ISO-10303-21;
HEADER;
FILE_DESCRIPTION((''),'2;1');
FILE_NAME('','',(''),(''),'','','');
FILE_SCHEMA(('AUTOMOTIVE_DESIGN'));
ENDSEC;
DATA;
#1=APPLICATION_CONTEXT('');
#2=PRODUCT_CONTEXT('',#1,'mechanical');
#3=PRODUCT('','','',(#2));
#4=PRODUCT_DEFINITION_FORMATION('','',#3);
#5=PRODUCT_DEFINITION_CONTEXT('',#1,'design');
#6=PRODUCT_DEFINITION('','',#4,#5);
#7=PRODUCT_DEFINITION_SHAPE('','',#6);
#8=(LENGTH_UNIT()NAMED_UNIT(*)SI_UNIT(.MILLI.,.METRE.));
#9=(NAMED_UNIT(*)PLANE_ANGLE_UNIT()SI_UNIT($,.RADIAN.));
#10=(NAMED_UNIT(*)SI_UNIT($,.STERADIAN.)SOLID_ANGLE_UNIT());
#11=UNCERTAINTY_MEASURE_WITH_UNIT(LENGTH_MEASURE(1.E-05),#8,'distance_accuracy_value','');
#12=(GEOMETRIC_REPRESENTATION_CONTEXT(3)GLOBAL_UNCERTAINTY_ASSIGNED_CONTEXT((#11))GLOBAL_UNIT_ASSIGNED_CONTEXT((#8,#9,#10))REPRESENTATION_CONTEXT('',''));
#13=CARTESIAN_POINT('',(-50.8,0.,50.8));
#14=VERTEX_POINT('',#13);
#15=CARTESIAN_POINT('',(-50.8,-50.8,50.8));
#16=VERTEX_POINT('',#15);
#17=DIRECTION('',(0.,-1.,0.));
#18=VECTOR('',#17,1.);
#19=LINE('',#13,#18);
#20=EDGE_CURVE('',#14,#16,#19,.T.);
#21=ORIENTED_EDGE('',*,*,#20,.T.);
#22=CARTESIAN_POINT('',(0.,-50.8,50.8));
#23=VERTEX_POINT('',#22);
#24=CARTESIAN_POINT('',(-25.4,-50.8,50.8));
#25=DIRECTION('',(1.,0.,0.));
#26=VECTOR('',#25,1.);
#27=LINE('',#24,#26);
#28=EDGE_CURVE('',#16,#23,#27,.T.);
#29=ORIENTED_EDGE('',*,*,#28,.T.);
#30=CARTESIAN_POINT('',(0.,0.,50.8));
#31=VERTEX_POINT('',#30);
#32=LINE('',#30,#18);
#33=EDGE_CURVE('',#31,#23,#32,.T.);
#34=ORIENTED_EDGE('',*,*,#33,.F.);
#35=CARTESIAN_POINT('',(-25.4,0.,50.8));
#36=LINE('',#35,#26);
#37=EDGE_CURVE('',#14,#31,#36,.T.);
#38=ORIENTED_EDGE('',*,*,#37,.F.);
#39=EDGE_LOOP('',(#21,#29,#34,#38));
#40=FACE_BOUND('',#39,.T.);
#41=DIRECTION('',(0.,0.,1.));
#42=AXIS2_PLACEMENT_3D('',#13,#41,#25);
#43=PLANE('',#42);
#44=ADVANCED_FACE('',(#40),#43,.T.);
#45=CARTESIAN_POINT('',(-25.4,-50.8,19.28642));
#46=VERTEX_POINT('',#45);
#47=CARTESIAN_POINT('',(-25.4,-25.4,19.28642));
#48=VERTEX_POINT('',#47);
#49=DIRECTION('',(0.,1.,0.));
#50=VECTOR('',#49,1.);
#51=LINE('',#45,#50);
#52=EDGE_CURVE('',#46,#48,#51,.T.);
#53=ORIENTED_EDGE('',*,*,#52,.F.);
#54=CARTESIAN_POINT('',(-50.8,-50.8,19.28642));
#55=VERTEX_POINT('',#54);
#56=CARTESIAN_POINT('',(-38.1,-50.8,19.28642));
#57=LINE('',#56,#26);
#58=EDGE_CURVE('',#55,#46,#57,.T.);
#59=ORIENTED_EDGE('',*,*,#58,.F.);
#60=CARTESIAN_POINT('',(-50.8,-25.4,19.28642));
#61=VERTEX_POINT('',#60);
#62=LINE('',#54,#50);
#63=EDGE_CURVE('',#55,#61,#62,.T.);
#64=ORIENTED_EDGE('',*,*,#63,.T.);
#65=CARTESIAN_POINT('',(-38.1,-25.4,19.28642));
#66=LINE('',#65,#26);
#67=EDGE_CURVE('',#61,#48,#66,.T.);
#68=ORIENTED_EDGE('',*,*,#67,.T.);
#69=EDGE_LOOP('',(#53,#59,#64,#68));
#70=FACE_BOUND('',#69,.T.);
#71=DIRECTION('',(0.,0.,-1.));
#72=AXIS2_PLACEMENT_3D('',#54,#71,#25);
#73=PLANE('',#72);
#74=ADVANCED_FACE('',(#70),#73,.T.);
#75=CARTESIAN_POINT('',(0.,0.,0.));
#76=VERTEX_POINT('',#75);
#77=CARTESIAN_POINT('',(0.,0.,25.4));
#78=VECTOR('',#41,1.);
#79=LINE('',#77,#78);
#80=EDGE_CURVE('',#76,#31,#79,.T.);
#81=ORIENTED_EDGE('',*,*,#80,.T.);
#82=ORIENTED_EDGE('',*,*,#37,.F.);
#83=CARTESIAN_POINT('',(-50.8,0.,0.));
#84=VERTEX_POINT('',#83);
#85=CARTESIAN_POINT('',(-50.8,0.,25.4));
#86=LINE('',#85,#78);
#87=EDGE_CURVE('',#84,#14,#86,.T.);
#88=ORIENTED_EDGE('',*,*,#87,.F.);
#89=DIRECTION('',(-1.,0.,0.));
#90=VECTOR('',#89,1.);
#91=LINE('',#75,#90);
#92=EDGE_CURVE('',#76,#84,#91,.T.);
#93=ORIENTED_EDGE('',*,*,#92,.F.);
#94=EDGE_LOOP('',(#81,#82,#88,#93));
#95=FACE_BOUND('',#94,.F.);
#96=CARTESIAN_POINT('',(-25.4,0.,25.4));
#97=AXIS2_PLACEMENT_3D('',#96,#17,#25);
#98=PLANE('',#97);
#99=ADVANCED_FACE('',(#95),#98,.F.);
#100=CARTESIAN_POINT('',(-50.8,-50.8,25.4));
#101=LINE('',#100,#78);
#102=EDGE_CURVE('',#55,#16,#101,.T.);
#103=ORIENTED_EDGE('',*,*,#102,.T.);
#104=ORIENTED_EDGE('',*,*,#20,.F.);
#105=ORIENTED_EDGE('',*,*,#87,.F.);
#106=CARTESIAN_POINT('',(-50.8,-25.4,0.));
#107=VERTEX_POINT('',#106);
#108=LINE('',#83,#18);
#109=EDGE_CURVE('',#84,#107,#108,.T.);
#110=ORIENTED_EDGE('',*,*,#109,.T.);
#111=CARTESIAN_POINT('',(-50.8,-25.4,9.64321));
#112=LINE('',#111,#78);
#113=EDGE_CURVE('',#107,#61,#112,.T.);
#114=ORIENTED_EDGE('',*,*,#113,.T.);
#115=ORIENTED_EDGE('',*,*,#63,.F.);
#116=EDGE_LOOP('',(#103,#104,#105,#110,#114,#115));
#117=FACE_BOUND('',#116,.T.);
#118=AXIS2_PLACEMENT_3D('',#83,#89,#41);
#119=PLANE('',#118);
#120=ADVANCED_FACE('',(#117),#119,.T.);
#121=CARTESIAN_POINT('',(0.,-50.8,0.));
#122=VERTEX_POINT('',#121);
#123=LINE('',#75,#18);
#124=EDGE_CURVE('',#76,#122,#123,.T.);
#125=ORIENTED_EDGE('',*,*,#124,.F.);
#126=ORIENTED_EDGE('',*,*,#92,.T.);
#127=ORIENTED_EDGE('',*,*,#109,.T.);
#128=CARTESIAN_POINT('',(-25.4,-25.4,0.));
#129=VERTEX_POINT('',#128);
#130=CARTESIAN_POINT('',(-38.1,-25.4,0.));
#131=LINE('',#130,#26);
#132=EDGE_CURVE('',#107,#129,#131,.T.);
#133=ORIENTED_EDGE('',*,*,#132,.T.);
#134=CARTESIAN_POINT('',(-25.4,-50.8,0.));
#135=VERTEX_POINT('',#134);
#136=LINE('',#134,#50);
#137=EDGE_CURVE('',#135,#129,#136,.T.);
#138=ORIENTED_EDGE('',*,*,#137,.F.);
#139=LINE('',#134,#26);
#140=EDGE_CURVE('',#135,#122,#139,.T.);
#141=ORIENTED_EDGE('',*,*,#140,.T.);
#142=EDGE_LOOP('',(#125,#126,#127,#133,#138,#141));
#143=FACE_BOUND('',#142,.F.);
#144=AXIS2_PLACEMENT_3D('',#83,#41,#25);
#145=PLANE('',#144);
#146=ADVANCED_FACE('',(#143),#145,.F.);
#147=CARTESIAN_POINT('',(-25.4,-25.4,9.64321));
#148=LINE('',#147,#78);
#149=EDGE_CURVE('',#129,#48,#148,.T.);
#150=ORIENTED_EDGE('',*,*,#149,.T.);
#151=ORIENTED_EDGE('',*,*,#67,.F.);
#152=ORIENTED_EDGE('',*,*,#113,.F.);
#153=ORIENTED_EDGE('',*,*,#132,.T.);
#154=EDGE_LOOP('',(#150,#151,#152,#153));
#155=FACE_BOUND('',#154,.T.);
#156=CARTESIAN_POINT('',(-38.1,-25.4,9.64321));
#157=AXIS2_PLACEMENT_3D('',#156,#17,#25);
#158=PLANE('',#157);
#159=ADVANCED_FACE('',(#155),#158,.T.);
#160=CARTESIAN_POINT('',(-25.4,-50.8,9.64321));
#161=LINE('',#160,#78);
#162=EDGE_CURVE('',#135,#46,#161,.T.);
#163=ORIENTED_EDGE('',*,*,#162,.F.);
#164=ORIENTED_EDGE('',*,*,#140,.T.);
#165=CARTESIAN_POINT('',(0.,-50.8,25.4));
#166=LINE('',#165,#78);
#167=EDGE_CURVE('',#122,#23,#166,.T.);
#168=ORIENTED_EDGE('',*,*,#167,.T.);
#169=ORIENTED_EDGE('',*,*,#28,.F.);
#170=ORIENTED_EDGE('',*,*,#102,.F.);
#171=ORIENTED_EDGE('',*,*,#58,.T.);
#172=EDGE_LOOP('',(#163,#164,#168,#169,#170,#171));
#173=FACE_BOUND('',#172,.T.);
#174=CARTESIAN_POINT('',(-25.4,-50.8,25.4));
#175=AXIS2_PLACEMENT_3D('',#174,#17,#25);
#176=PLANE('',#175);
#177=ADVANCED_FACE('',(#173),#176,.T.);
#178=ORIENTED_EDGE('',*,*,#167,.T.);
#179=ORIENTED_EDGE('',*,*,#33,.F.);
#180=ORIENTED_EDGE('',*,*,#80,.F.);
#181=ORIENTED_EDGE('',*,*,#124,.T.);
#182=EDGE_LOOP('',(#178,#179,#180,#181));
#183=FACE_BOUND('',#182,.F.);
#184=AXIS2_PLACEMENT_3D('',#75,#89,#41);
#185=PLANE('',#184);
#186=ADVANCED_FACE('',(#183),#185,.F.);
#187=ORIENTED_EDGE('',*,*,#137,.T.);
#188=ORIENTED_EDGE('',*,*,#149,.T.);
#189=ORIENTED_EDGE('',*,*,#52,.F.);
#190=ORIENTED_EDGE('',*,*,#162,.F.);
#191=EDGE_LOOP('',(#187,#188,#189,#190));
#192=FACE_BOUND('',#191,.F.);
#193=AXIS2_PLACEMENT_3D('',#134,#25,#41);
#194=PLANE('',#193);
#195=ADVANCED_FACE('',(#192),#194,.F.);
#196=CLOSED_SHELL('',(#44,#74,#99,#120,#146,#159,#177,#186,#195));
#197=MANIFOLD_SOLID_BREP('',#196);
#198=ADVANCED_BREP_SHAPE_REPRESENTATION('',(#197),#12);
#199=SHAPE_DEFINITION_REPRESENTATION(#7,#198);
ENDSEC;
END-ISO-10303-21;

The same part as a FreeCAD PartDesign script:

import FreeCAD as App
import Part
import Sketcher

V = App.Vector
Q = App.Units.Quantity

doc = App.newDocument("Part")
params = doc.addObject("Spreadsheet::Sheet", "Params")
for row, (alias, value) in enumerate([
    ("sketch1_width", "2 in"),
    ("pad1_length", "2 in"),
    ("sketch2_width", "1 in"),
    ("pocket1_length", "1 in"),
    ("sketch3_width", "1 in"),
    ("pocket2_length", "1 in"),
    ("sketch4_width", "1 in"),
    ("pocket3_length", "1 in"),
], start=1):
    params.set(f"A{row}", alias)
    params.set(f"B{row}", "=" + value)
    params.setAlias(f"B{row}", alias)

body = doc.addObject("PartDesign::Body", "Body")

# Sketch on XZ plane
sketch1 = body.newObject("Sketcher::SketchObject", "Sketch")
sketch1.AttachmentSupport = (doc.getObject("XZ_Plane"), [""])
sketch1.MapMode = "FlatFace"
sketch1.addGeometry([
    Part.LineSegment(V(-51, 51, 0), V(-51, 0, 0)),
    Part.LineSegment(V(-51, 0, 0), V(0, 0, 0)),
    Part.LineSegment(V(0, 0, 0), V(0, 51, 0)),
    Part.LineSegment(V(0, 51, 0), V(-51, 51, 0)),
], False)
sketch1.addConstraint([
    Sketcher.Constraint("Coincident", 0, 2, 1, 1),
    Sketcher.Constraint("Coincident", 1, 2, 2, 1),
    Sketcher.Constraint("Coincident", 2, 2, 3, 1),
    Sketcher.Constraint("Coincident", 3, 2, 0, 1),
    Sketcher.Constraint("Vertical", 0),
    Sketcher.Constraint("Horizontal", 1),
    Sketcher.Constraint("Vertical", 2),
    Sketcher.Constraint("Horizontal", 3),
    Sketcher.Constraint("Coincident", 1, 2, -1, 1),
    Sketcher.Constraint("Equal", 3, 0),
    Sketcher.Constraint("DistanceX", 1, 1, 1, 2, Q("2 in")),
])
sketch1.setExpression("Constraints[10]", "Params.sketch1_width")
pad1 = body.newObject("PartDesign::Pad", "Pad")
pad1.Profile = sketch1
pad1.setExpression("Length", "Params.pad1_length")

# Sketch on XZ plane
sketch2 = body.newObject("Sketcher::SketchObject", "Sketch001")
sketch2.AttachmentSupport = (doc.getObject("XZ_Plane"), [""])
sketch2.MapMode = "FlatFace"
sketch2.addGeometry([
    Part.LineSegment(V(-50, 25, 0), V(-50, 0, 0)),
    Part.LineSegment(V(-50, 0, 0), V(-25, 0, 0)),
    Part.LineSegment(V(-25, 0, 0), V(-25, 25, 0)),
    Part.LineSegment(V(-25, 25, 0), V(-50, 25, 0)),
], False)
sketch2.addConstraint([
    Sketcher.Constraint("Coincident", 0, 2, 1, 1),
    Sketcher.Constraint("Coincident", 1, 2, 2, 1),
    Sketcher.Constraint("Coincident", 2, 2, 3, 1),
    Sketcher.Constraint("Coincident", 3, 2, 0, 1),
    Sketcher.Constraint("Vertical", 0),
    Sketcher.Constraint("Horizontal", 1),
    Sketcher.Constraint("Vertical", 2),
    Sketcher.Constraint("Horizontal", 3),
    Sketcher.Constraint("PointOnObject", 0, 2, -1),
    Sketcher.Constraint("Equal", 3, 0),
    Sketcher.Constraint("DistanceX", 1, 1, 1, 2, Q("1 in")),
    Sketcher.Constraint("DistanceX", 0, 2, -1, 1, Q("50.221074 mm")),
])
sketch2.setExpression("Constraints[10]", "Params.sketch2_width")
pocket1 = body.newObject("PartDesign::Pocket", "Pocket")
pocket1.Profile = sketch2
pocket1.setExpression("Length", "Params.pocket1_length")

# Sketch on XZ plane
sketch3 = body.newObject("Sketcher::SketchObject", "Sketch002")
sketch3.AttachmentSupport = (doc.getObject("XZ_Plane"), [""])
sketch3.MapMode = "FlatFace"
sketch3.addGeometry([
    Part.LineSegment(V(-50, 25, 0), V(-50, 0, 0)),
    Part.LineSegment(V(-50, 0, 0), V(-25, 0, 0)),
    Part.LineSegment(V(-25, 0, 0), V(-25, 25, 0)),
    Part.LineSegment(V(-25, 25, 0), V(-50, 25, 0)),
], False)
sketch3.addConstraint([
    Sketcher.Constraint("Coincident", 0, 2, 1, 1),
    Sketcher.Constraint("Coincident", 1, 2, 2, 1),
    Sketcher.Constraint("Coincident", 2, 2, 3, 1),
    Sketcher.Constraint("Coincident", 3, 2, 0, 1),
    Sketcher.Constraint("Vertical", 0),
    Sketcher.Constraint("Horizontal", 1),
    Sketcher.Constraint("Vertical", 2),
    Sketcher.Constraint("Horizontal", 3),
    Sketcher.Constraint("PointOnObject", 0, 2, -1),
    Sketcher.Constraint("Equal", 3, 0),
    Sketcher.Constraint("DistanceX", 1, 1, 1, 2, Q("1 in")),
    Sketcher.Constraint("DistanceX", 0, 2, -1, 1, Q("50.03012 mm")),
])
sketch3.setExpression("Constraints[10]", "Params.sketch3_width")
pocket2 = body.newObject("PartDesign::Pocket", "Pocket001")
pocket2.Profile = sketch3
pocket2.setExpression("Length", "Params.pocket2_length")

# Sketch on XZ plane
sketch4 = body.newObject("Sketcher::SketchObject", "Sketch003")
sketch4.AttachmentSupport = (doc.getObject("XZ_Plane"), [""])
sketch4.MapMode = "FlatFace"
sketch4.AttachmentOffset = App.Placement(V(0, 0, 2 * 25.4), App.Rotation())
sketch4.addGeometry([
    Part.LineSegment(V(-51, 19, 0), V(-51, 0, 0)),
    Part.LineSegment(V(-51, 0, 0), V(-25, 0, 0)),
    Part.LineSegment(V(-25, 0, 0), V(-25, 19, 0)),
    Part.LineSegment(V(-25, 19, 0), V(-51, 19, 0)),
], False)
sketch4.addConstraint([
    Sketcher.Constraint("Coincident", 0, 2, 1, 1),
    Sketcher.Constraint("Coincident", 1, 2, 2, 1),
    Sketcher.Constraint("Coincident", 2, 2, 3, 1),
    Sketcher.Constraint("Coincident", 3, 2, 0, 1),
    Sketcher.Constraint("Vertical", 0),
    Sketcher.Constraint("Horizontal", 1),
    Sketcher.Constraint("Vertical", 2),
    Sketcher.Constraint("Horizontal", 3),
    Sketcher.Constraint("PointOnObject", 0, 2, -1),
    Sketcher.Constraint("DistanceX", 1, 1, 1, 2, Q("1 in")),
    Sketcher.Constraint("DistanceX", 0, 2, -1, 1, Q("2 in")),
    Sketcher.Constraint("DistanceY", 0, 2, 0, 1, Q("19.28642 mm")),
])
sketch4.setExpression("Constraints[9]", "Params.sketch4_width")
pocket3 = body.newObject("PartDesign::Pocket", "Pocket002")
pocket3.Profile = sketch4
pocket3.setExpression("Length", "Params.pocket3_length")

doc.recompute()
